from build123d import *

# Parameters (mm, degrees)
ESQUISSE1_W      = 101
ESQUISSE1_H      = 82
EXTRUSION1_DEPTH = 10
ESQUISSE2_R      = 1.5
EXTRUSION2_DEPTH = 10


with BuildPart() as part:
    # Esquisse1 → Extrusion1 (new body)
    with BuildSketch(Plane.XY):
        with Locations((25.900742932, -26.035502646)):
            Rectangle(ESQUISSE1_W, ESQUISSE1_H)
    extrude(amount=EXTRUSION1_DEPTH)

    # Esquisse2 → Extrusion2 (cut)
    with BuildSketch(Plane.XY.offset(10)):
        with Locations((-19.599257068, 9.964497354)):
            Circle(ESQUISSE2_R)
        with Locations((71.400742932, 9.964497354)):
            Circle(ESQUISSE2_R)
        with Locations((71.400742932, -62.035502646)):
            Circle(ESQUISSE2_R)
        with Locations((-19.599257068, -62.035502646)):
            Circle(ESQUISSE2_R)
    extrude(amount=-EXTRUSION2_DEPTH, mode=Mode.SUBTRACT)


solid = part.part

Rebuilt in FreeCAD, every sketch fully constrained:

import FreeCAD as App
import Part
import Sketcher

V = App.Vector
Q = App.Units.Quantity


def add_polygon(sketch, points):
    """Adds a closed chain of lines whose ends are joined by coincident constraints."""
    first, n = sketch.GeometryCount, len(points)
    for a, b in zip(points, points[1:] + points[:1]):
        sketch.addGeometry(Part.LineSegment(App.Vector(*a, 0), App.Vector(*b, 0)), False)
    for i in range(n):
        sketch.addConstraint(Sketcher.Constraint("Coincident", first + i, 2, first + (i + 1) % n, 1))

doc = App.newDocument("Part")
params = doc.addObject("Spreadsheet::Sheet", "Params")
for row, (alias, value) in enumerate([
    ("sketch1_width", "101 mm"),
    ("sketch1_height", "82 mm"),
    ("pad1_length", "10 mm"),
    ("sketch2_diameter", "3 mm"),
    ("pocket1_length", "10 mm"),
], start=1):
    params.set(f"A{row}", alias)
    params.set(f"B{row}", "=" + value)
    params.setAlias(f"B{row}", alias)

body = doc.addObject("PartDesign::Body", "Body")

# Sketch on XY plane
sketch1 = body.newObject("Sketcher::SketchObject", "Sketch")
sketch1.AttachmentSupport = (doc.getObject("XY_Plane"), [""])
sketch1.MapMode = "FlatFace"
add_polygon(sketch1, [(-24.599257, 14.964497), (-24.599257, -67.035503), (76.400743, -67.035503), (76.400743, 14.964497)])  # lines 0-3
sketch1.addConstraint(Sketcher.Constraint("Vertical", 0))
sketch1.addConstraint(Sketcher.Constraint("Horizontal", 1))
sketch1.addConstraint(Sketcher.Constraint("Vertical", 2))
sketch1.addConstraint(Sketcher.Constraint("Horizontal", 3))
sketch1.addConstraint(Sketcher.Constraint("DistanceX", 1, 1, 1, 2, Q("101 mm")))
sketch1.addConstraint(Sketcher.Constraint("DistanceY", 0, 2, 0, 1, Q("82 mm")))
sketch1.addConstraint(Sketcher.Constraint("DistanceX", 0, 2, -1, 1, Q("24.599257 mm")))
sketch1.addConstraint(Sketcher.Constraint("DistanceY", 0, 2, -1, 1, Q("67.035503 mm")))
sketch1.setExpression("Constraints[8]", "Params.sketch1_width")
sketch1.setExpression("Constraints[9]", "Params.sketch1_height")
pad1 = body.newObject("PartDesign::Pad", "Pad")
pad1.Profile = sketch1
pad1.setExpression("Length", "Params.pad1_length")

# Sketch on XY plane
sketch2 = body.newObject("Sketcher::SketchObject", "Sketch001")
sketch2.AttachmentSupport = (doc.getObject("XY_Plane"), [""])
sketch2.MapMode = "FlatFace"
sketch2.AttachmentOffset = App.Placement(V(0, 0, 10), App.Rotation())
sketch2.addGeometry(Part.Circle(V(-19.599257, 9.964497, 0), V(0, 0, 1), 1.5), False)
sketch2.addGeometry(Part.Circle(V(71.400743, 9.964497, 0), V(0, 0, 1), 1.5), False)
sketch2.addGeometry(Part.Circle(V(71.400743, -62.035503, 0), V(0, 0, 1), 1.5), False)
sketch2.addGeometry(Part.Circle(V(-19.599257, -62.035503, 0), V(0, 0, 1), 1.5), False)
sketch2.addConstraint(Sketcher.Constraint("Equal", 0, 1))
sketch2.addConstraint(Sketcher.Constraint("Equal", 1, 2))
sketch2.addConstraint(Sketcher.Constraint("Equal", 2, 3))
sketch2.addConstraint(Sketcher.Constraint("Horizontal", 0, 3, 1, 3))
sketch2.addConstraint(Sketcher.Constraint("Horizontal", 2, 3, 3, 3))
sketch2.addConstraint(Sketcher.Constraint("Vertical", 1, 3, 2, 3))
sketch2.addConstraint(Sketcher.Constraint("Vertical", 0, 3, 3, 3))
sketch2.addConstraint(Sketcher.Constraint("Diameter", 0, Q("3 mm")))
sketch2.addConstraint(Sketcher.Constraint("DistanceX", 0, 3, 1, 3, Q("91 mm")))
sketch2.addConstraint(Sketcher.Constraint("DistanceY", 2, 3, 1, 3, Q("72 mm")))
sketch2.addConstraint(Sketcher.Constraint("DistanceX", 0, 3, -1, 1, Q("19.599257 mm")))
sketch2.addConstraint(Sketcher.Constraint("DistanceY", -1, 1, 0, 3, Q("9.964497 mm")))
sketch2.setExpression("Constraints[7]", "Params.sketch2_diameter")
pocket1 = body.newObject("PartDesign::Pocket", "Pocket")
pocket1.Profile = sketch2
pocket1.setExpression("Length", "Params.pocket1_length")

doc.recompute()
